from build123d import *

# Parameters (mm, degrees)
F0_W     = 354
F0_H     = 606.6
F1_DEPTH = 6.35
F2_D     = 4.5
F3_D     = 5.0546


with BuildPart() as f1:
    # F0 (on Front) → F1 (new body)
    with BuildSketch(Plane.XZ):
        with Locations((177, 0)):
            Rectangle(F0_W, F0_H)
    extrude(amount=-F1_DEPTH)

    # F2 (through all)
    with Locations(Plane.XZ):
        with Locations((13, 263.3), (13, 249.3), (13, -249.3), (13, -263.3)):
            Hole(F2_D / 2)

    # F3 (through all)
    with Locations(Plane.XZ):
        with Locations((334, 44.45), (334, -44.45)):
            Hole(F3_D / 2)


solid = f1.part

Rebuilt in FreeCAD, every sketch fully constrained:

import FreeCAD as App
import Part
import Sketcher

V = App.Vector
Q = App.Units.Quantity

doc = App.newDocument("Part")
params = doc.addObject("Spreadsheet::Sheet", "Params")
for row, (alias, value) in enumerate([
    ("sketch1_width", "354 mm"),
    ("sketch1_height", "606.6 mm"),
    ("pad1_length", "6.35 mm"),
    ("sketch2_diameter", "4.5 mm"),
    ("hole_diameter", "4.5 mm"),
    ("hole2_diameter", "5.0546 mm"),
], start=1):
    params.set(f"A{row}", alias)
    params.set(f"B{row}", "=" + value)
    params.setAlias(f"B{row}", alias)

body = doc.addObject("PartDesign::Body", "Body")

sketch1 = doc.addObject("Sketcher::SketchObject", "Sketch")
body.addObject(sketch1)
sketch1.AttachmentSupport = (doc.XZ_Plane, [""])
sketch1.MapMode = "FlatFace"
sketch1.addGeometry([
    Part.LineSegment(V(0, 303.3, 0), V(0, -303.3, 0)),
    Part.LineSegment(V(0, -303.3, 0), V(354, -303.3, 0)),
    Part.LineSegment(V(354, -303.3, 0), V(354, 303.3, 0)),
    Part.LineSegment(V(354, 303.3, 0), V(0, 303.3, 0)),
], False)
sketch1.addConstraint([
    Sketcher.Constraint("Coincident", 0, 2, 1, 1),
    Sketcher.Constraint("Coincident", 1, 2, 2, 1),
    Sketcher.Constraint("Coincident", 2, 2, 3, 1),
    Sketcher.Constraint("Coincident", 3, 2, 0, 1),
    Sketcher.Constraint("Vertical", 0),
    Sketcher.Constraint("Horizontal", 1),
    Sketcher.Constraint("Vertical", 2),
    Sketcher.Constraint("Horizontal", 3),
    Sketcher.Constraint("Symmetric", 0, 2, 3, 2, -1, 1),
    Sketcher.Constraint("DistanceX", 1, 1, 1, 2, Q("354 mm")),
    Sketcher.Constraint("DistanceY", 0, 2, 0, 1, Q("606.6 mm")),
])
sketch1.setExpression("Constraints[9]", "Params.sketch1_width")
sketch1.setExpression("Constraints[10]", "Params.sketch1_height")
pad1 = doc.addObject("PartDesign::Pad", "Pad")
body.addObject(pad1)
pad1.Profile = sketch1
pad1.setExpression("Length", "Params.pad1_length")
pad1.Reversed = True

sketch2 = doc.addObject("Sketcher::SketchObject", "Sketch001")
body.addObject(sketch2)
sketch2.AttachmentSupport = (doc.XZ_Plane, [""])
sketch2.MapMode = "FlatFace"
sketch2.addGeometry([
    Part.Circle(V(13, 263.3, 0), V(0, 0, 1), 2.25),
    Part.Circle(V(13, 249.3, 0), V(0, 0, 1), 2.25),
    Part.Circle(V(13, -249.3, 0), V(0, 0, 1), 2.25),
    Part.Circle(V(13, -263.3, 0), V(0, 0, 1), 2.25),
], False)
sketch2.addConstraint([
    Sketcher.Constraint("Equal", 0, 1),
    Sketcher.Constraint("Equal", 1, 2),
    Sketcher.Constraint("Equal", 2, 3),
    Sketcher.Constraint("Symmetric", 1, 3, 2, 3, -1),
    Sketcher.Constraint("Symmetric", 0, 3, 3, 3, -1),
    Sketcher.Constraint("Vertical", 0, 3, 1, 3),
    Sketcher.Constraint("Diameter", 0, Q("4.5 mm")),
    Sketcher.Constraint("DistanceX", -1, 1, 0, 3, Q("13 mm")),
    Sketcher.Constraint("DistanceY", 1, 3, 0, 3, Q("14 mm")),
    Sketcher.Constraint("DistanceY", -1, 1, 0, 3, Q("263.3 mm")),
])
sketch2.setExpression("Constraints[6]", "Params.sketch2_diameter")
doc.recompute()
hole = doc.addObject("PartDesign::Hole", "Hole")
body.addObject(hole)
hole.Profile = sketch2
hole.ThreadType = "None"
hole.setExpression("Diameter", "Params.hole_diameter")
hole.DepthType = "ThroughAll"

sketch3 = doc.addObject("Sketcher::SketchObject", "Sketch002")
body.addObject(sketch3)
sketch3.AttachmentSupport = (doc.XZ_Plane, [""])
sketch3.MapMode = "FlatFace"
sketch3.addGeometry([
    Part.Circle(V(334, 44.45, 0), V(0, 0, 1), 2.5273),
    Part.Circle(V(334, -44.45, 0), V(0, 0, 1), 2.5273),
], False)
sketch3.addConstraint([
    Sketcher.Constraint("Equal", 0, 1),
    Sketcher.Constraint("Symmetric", 0, 3, 1, 3, -1),
    Sketcher.Constraint("DistanceX", -1, 1, 0, 3, Q("334 mm")),
    Sketcher.Constraint("Diameter", 0, Q("5.0546 mm")),
    Sketcher.Constraint("DistanceY", 1, 3, 0, 3, Q("88.9 mm")),
])
doc.recompute()
hole2 = doc.addObject("PartDesign::Hole", "Hole001")
body.addObject(hole2)
hole2.Profile = sketch3
hole2.ThreadType = "None"
hole2.setExpression("Diameter", "Params.hole2_diameter")
hole2.DepthType = "ThroughAll"

doc.recompute()
